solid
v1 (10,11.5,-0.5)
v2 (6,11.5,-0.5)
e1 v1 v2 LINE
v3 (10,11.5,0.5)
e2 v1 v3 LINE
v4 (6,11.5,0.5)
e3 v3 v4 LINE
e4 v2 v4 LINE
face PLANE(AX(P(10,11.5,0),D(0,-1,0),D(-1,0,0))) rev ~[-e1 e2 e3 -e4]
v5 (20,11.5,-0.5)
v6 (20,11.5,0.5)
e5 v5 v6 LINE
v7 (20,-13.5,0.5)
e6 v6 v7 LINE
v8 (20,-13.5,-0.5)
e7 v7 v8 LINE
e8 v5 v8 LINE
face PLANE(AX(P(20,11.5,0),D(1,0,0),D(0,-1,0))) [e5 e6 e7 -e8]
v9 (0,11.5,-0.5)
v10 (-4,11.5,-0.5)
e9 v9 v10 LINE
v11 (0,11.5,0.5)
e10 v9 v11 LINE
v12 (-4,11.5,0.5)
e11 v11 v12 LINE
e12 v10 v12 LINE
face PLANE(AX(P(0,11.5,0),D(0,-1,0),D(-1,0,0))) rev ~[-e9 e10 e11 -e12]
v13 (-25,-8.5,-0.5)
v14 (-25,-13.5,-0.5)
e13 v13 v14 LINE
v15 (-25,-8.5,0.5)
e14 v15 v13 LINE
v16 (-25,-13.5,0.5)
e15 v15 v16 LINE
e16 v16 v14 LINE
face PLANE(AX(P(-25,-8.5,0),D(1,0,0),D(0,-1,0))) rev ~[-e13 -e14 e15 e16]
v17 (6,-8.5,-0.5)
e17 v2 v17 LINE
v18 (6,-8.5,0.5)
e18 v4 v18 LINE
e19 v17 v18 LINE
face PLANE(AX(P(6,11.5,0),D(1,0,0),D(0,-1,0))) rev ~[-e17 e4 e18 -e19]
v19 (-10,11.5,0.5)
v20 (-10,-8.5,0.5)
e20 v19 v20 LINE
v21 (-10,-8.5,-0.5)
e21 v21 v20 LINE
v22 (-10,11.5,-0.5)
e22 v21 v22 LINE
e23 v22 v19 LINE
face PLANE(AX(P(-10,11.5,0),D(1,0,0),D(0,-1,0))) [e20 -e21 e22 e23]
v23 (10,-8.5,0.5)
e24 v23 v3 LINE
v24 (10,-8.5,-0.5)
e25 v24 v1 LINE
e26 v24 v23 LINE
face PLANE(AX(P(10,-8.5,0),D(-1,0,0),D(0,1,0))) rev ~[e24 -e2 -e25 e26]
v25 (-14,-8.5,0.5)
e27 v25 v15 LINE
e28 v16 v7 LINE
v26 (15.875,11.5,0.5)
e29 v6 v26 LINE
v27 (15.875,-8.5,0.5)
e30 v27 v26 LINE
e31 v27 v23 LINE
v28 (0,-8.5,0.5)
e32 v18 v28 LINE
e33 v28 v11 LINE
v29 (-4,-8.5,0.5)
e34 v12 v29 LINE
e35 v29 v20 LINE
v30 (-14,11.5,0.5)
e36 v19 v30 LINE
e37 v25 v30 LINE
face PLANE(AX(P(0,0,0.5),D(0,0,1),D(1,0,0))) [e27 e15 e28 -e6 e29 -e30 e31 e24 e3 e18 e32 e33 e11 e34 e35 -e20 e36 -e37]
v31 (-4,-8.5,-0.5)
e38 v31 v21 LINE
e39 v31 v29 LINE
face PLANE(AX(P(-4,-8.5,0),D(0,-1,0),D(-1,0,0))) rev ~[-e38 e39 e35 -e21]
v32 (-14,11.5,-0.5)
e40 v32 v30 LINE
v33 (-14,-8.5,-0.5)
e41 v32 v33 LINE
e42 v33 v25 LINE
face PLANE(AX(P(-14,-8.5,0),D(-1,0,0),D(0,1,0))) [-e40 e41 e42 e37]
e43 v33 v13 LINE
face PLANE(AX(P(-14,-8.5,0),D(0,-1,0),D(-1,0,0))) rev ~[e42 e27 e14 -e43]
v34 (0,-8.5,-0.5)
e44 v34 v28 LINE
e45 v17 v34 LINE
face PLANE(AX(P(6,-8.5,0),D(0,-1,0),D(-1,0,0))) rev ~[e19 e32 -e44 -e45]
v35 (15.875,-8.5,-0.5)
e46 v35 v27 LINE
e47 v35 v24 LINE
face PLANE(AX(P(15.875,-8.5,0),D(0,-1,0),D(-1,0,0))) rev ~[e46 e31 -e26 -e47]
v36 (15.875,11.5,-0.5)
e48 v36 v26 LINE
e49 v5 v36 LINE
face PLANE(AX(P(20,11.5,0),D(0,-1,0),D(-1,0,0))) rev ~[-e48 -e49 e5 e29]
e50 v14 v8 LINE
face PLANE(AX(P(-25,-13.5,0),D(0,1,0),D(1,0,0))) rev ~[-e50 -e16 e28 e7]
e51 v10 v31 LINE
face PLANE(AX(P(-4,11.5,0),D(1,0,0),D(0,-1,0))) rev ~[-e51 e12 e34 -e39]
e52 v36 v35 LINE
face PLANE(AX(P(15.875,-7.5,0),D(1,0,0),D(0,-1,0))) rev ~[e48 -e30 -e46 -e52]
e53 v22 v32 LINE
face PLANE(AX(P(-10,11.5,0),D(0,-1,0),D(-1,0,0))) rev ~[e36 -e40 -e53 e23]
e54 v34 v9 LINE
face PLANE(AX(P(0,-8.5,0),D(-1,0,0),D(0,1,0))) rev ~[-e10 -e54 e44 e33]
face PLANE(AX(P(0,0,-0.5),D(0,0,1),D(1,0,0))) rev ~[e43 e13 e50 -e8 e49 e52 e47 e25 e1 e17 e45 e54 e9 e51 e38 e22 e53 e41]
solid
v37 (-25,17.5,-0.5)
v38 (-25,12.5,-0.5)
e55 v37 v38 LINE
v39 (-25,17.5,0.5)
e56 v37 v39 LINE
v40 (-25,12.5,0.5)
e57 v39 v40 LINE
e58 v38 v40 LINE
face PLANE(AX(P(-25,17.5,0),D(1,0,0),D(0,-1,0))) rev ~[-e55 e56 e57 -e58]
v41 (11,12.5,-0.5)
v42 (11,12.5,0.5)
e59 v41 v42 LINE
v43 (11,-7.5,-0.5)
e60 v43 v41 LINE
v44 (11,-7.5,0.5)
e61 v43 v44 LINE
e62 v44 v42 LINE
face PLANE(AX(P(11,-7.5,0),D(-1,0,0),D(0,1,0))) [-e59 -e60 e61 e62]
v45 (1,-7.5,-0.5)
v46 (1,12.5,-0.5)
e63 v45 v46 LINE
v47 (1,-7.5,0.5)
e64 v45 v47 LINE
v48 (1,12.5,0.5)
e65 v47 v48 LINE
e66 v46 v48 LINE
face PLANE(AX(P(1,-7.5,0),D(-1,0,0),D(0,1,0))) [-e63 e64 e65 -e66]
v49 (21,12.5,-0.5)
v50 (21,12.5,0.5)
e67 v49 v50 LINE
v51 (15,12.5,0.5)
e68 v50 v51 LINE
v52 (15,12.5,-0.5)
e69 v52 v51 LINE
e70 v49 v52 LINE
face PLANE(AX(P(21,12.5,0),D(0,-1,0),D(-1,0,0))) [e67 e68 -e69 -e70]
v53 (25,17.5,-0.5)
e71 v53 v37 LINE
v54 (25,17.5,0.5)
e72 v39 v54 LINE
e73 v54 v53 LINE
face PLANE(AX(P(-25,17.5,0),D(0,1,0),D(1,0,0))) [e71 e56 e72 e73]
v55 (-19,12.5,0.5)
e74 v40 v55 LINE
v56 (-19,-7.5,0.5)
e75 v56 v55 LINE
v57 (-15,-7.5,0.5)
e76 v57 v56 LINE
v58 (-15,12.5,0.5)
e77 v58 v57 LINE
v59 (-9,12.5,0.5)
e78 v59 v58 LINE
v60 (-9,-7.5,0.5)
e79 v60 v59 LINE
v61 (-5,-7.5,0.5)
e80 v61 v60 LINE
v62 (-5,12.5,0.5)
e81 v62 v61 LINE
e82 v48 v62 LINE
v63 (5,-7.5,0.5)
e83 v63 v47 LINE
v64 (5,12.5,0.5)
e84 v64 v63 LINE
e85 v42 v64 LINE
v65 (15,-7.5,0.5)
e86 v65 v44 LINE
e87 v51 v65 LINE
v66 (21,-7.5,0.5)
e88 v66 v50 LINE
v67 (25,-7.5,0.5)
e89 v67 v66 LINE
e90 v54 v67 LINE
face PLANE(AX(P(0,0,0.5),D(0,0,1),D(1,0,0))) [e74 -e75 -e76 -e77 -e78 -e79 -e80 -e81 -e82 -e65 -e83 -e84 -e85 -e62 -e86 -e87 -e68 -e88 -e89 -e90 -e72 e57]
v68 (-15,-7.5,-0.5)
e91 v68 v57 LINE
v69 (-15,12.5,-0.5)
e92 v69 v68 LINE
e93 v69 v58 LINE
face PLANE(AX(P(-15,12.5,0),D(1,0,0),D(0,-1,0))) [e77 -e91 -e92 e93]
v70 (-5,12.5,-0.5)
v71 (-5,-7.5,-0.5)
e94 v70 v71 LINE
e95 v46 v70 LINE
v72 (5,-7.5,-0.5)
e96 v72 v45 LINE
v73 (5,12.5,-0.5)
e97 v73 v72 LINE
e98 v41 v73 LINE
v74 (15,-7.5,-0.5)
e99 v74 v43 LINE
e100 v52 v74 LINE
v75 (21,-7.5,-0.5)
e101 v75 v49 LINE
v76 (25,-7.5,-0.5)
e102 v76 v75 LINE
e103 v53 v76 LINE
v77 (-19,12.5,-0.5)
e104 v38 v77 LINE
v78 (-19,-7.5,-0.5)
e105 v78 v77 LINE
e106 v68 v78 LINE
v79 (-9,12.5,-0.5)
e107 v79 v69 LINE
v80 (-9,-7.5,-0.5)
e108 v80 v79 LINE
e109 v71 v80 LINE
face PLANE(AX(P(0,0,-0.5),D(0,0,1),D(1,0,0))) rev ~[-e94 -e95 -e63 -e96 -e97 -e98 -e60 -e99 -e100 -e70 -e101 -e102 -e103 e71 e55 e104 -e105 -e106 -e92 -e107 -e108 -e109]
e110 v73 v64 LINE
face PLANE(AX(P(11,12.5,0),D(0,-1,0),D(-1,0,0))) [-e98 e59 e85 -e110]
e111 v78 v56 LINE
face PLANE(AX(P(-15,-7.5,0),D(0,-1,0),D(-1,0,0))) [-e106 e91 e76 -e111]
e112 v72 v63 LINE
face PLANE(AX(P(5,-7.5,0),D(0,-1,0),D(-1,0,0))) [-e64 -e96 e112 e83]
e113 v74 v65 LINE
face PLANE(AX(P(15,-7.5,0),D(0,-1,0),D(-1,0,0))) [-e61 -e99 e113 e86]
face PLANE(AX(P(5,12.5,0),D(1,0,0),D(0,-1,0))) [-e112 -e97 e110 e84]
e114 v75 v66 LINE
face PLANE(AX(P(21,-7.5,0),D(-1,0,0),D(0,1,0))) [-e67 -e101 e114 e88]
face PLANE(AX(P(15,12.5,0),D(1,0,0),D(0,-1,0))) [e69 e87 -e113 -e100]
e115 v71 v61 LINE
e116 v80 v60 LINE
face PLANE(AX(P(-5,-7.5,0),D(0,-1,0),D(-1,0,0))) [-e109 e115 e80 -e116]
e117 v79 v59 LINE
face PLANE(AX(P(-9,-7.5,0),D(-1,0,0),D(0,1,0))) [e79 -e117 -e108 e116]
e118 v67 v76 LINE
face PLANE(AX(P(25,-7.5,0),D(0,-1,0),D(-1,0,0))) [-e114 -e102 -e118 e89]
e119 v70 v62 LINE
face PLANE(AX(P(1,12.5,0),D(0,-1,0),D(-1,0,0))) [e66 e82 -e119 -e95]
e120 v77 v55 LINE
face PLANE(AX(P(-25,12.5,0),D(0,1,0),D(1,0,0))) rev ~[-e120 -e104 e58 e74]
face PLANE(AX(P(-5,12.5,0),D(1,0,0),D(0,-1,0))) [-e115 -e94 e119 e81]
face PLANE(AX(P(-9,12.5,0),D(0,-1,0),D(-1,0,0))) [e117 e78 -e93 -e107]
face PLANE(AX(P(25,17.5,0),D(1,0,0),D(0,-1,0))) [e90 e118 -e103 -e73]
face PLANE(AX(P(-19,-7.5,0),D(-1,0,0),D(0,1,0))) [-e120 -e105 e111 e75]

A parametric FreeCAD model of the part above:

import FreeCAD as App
import Part
import Sketcher
from FreeCAD import Vector
Q = App.Units.Quantity

doc = App.newDocument("Part")
params = doc.addObject("Spreadsheet::Sheet", "Params")
for row, (alias, value) in enumerate([
    ("sketch1_width", "50 mm"),
    ("sketch1_width2", "6 mm"),
    ("sketch1_height", "5 mm"),
    ("sketch1_height2", "25 mm"),
    ("pad1_length", "1 mm"),
], start=1):
    params.set(f"A{row}", alias)
    params.set(f"B{row}", "=" + value)
    params.setAlias(f"B{row}", alias)

body = doc.addObject("PartDesign::Body", "Body")
body.AllowCompound = True

# Sketch on XY plane
sketch1 = body.newObject("Sketcher::SketchObject", "Sketch")
sketch1.AttachmentSupport = (doc.getObject("XY_Plane"), [""])
sketch1.MapMode = "FlatFace"
sketch1.addGeometry(Part.LineSegment(Vector(25, 17.5, 0), Vector(-25, 17.5, 0)), False)
sketch1.addGeometry(Part.LineSegment(Vector(-25, 17.5, 0), Vector(-25, 12.5, 0)), False)
sketch1.addGeometry(Part.LineSegment(Vector(-25, 12.5, 0), Vector(-19, 12.5, 0)), False)
sketch1.addGeometry(Part.LineSegment(Vector(-19, 12.5, 0), Vector(-19, -7.5, 0)), False)
sketch1.addGeometry(Part.LineSegment(Vector(-19, -7.5, 0), Vector(-15, -7.5, 0)), False)
sketch1.addGeometry(Part.LineSegment(Vector(-15, -7.5, 0), Vector(-15, 12.5, 0)), False)
sketch1.addGeometry(Part.LineSegment(Vector(-15, 12.5, 0), Vector(-9, 12.5, 0)), False)
sketch1.addGeometry(Part.LineSegment(Vector(-9, 12.5, 0), Vector(-9, -7.5, 0)), False)
sketch1.addGeometry(Part.LineSegment(Vector(-9, -7.5, 0), Vector(-5, -7.5, 0)), False)
sketch1.addGeometry(Part.LineSegment(Vector(-5, -7.5, 0), Vector(-5, 12.5, 0)), False)
sketch1.addGeometry(Part.LineSegment(Vector(-5, 12.5, 0), Vector(1, 12.5, 0)), False)
sketch1.addGeometry(Part.LineSegment(Vector(1, 12.5, 0), Vector(1, -7.5, 0)), False)
sketch1.addGeometry(Part.LineSegment(Vector(1, -7.5, 0), Vector(5, -7.5, 0)), False)
sketch1.addGeometry(Part.LineSegment(Vector(5, -7.5, 0), Vector(5, 12.5, 0)), False)
sketch1.addGeometry(Part.LineSegment(Vector(5, 12.5, 0), Vector(11, 12.5, 0)), False)
sketch1.addGeometry(Part.LineSegment(Vector(11, 12.5, 0), Vector(11, -7.5, 0)), False)
sketch1.addGeometry(Part.LineSegment(Vector(11, -7.5, 0), Vector(15, -7.5, 0)), False)
sketch1.addGeometry(Part.LineSegment(Vector(15, -7.5, 0), Vector(15, 12.5, 0)), False)
sketch1.addGeometry(Part.LineSegment(Vector(15, 12.5, 0), Vector(21, 12.5, 0)), False)
sketch1.addGeometry(Part.LineSegment(Vector(21, 12.5, 0), Vector(21, -7.5, 0)), False)
sketch1.addGeometry(Part.LineSegment(Vector(21, -7.5, 0), Vector(25, -7.5, 0)), False)
sketch1.addGeometry(Part.LineSegment(Vector(25, -7.5, 0), Vector(25, 17.5, 0)), False)
sketch1.addGeometry(Part.LineSegment(Vector(20, -13.5, 0), Vector(20, 11.5, 0)), False)
sketch1.addGeometry(Part.LineSegment(Vector(20, 11.5, 0), Vector(15.9, 11.5, 0)), False)
sketch1.addGeometry(Part.LineSegment(Vector(15.9, 11.5, 0), Vector(15.9, -8.5, 0)), False)
sketch1.addGeometry(Part.LineSegment(Vector(15.9, -8.5, 0), Vector(10, -8.5, 0)), False)
sketch1.addGeometry(Part.LineSegment(Vector(10, -8.5, 0), Vector(10, 11.5, 0)), False)
sketch1.addGeometry(Part.LineSegment(Vector(10, 11.5, 0), Vector(6, 11.5, 0)), False)
sketch1.addGeometry(Part.LineSegment(Vector(6, 11.5, 0), Vector(6, -8.5, 0)), False)
sketch1.addGeometry(Part.LineSegment(Vector(6, -8.5, 0), Vector(0, -8.5, 0)), False)
sketch1.addGeometry(Part.LineSegment(Vector(0, -8.5, 0), Vector(0, 11.5, 0)), False)
sketch1.addGeometry(Part.LineSegment(Vector(0, 11.5, 0), Vector(-4, 11.5, 0)), False)
sketch1.addGeometry(Part.LineSegment(Vector(-4, 11.5, 0), Vector(-4, -8.5, 0)), False)
sketch1.addGeometry(Part.LineSegment(Vector(-4, -8.5, 0), Vector(-10, -8.5, 0)), False)
sketch1.addGeometry(Part.LineSegment(Vector(-10, -8.5, 0), Vector(-10, 11.5, 0)), False)
sketch1.addGeometry(Part.LineSegment(Vector(-10, 11.5, 0), Vector(-14, 11.5, 0)), False)
sketch1.addGeometry(Part.LineSegment(Vector(-14, 11.5, 0), Vector(-14, -8.5, 0)), False)
sketch1.addGeometry(Part.LineSegment(Vector(-14, -8.5, 0), Vector(-25, -8.5, 0)), False)
sketch1.addGeometry(Part.LineSegment(Vector(-25, -8.5, 0), Vector(-25, -13.5, 0)), False)
sketch1.addGeometry(Part.LineSegment(Vector(-25, -13.5, 0), Vector(20, -13.5, 0)), False)
sketch1.addConstraint(Sketcher.Constraint("Coincident", 0, 2, 1, 1))
sketch1.addConstraint(Sketcher.Constraint("Coincident", 1, 2, 2, 1))
sketch1.addConstraint(Sketcher.Constraint("Coincident", 2, 2, 3, 1))
sketch1.addConstraint(Sketcher.Constraint("Coincident", 3, 2, 4, 1))
sketch1.addConstraint(Sketcher.Constraint("Coincident", 4, 2, 5, 1))
sketch1.addConstraint(Sketcher.Constraint("Coincident", 5, 2, 6, 1))
sketch1.addConstraint(Sketcher.Constraint("Coincident", 6, 2, 7, 1))
sketch1.addConstraint(Sketcher.Constraint("Coincident", 7, 2, 8, 1))
sketch1.addConstraint(Sketcher.Constraint("Coincident", 8, 2, 9, 1))
sketch1.addConstraint(Sketcher.Constraint("Coincident", 9, 2, 10, 1))
sketch1.addConstraint(Sketcher.Constraint("Coincident", 10, 2, 11, 1))
sketch1.addConstraint(Sketcher.Constraint("Coincident", 11, 2, 12, 1))
sketch1.addConstraint(Sketcher.Constraint("Coincident", 12, 2, 13, 1))
sketch1.addConstraint(Sketcher.Constraint("Coincident", 13, 2, 14, 1))
sketch1.addConstraint(Sketcher.Constraint("Coincident", 14, 2, 15, 1))
sketch1.addConstraint(Sketcher.Constraint("Coincident", 15, 2, 16, 1))
sketch1.addConstraint(Sketcher.Constraint("Coincident", 16, 2, 17, 1))
sketch1.addConstraint(Sketcher.Constraint("Coincident", 17, 2, 18, 1))
sketch1.addConstraint(Sketcher.Constraint("Coincident", 18, 2, 19, 1))
sketch1.addConstraint(Sketcher.Constraint("Coincident", 19, 2, 20, 1))
sketch1.addConstraint(Sketcher.Constraint("Coincident", 20, 2, 21, 1))
sketch1.addConstraint(Sketcher.Constraint("Coincident", 21, 2, 0, 1))
sketch1.addConstraint(Sketcher.Constraint("Coincident", 22, 2, 23, 1))
sketch1.addConstraint(Sketcher.Constraint("Coincident", 23, 2, 24, 1))
sketch1.addConstraint(Sketcher.Constraint("Coincident", 24, 2, 25, 1))
sketch1.addConstraint(Sketcher.Constraint("Coincident", 25, 2, 26, 1))
sketch1.addConstraint(Sketcher.Constraint("Coincident", 26, 2, 27, 1))
sketch1.addConstraint(Sketcher.Constraint("Coincident", 27, 2, 28, 1))
sketch1.addConstraint(Sketcher.Constraint("Coincident", 28, 2, 29, 1))
sketch1.addConstraint(Sketcher.Constraint("Coincident", 29, 2, 30, 1))
sketch1.addConstraint(Sketcher.Constraint("Coincident", 30, 2, 31, 1))
sketch1.addConstraint(Sketcher.Constraint("Coincident", 31, 2, 32, 1))
sketch1.addConstraint(Sketcher.Constraint("Coincident", 32, 2, 33, 1))
sketch1.addConstraint(Sketcher.Constraint("Coincident", 33, 2, 34, 1))
sketch1.addConstraint(Sketcher.Constraint("Coincident", 34, 2, 35, 1))
sketch1.addConstraint(Sketcher.Constraint("Coincident", 35, 2, 36, 1))
sketch1.addConstraint(Sketcher.Constraint("Coincident", 36, 2, 37, 1))
sketch1.addConstraint(Sketcher.Constraint("Coincident", 37, 2, 38, 1))
sketch1.addConstraint(Sketcher.Constraint("Coincident", 38, 2, 39, 1))
sketch1.addConstraint(Sketcher.Constraint("Coincident", 39, 2, 22, 1))
sketch1.addConstraint(Sketcher.Constraint("Horizontal", 0))
sketch1.addConstraint(Sketcher.Constraint("Vertical", 1))
sketch1.addConstraint(Sketcher.Constraint("Horizontal", 2))
sketch1.addConstraint(Sketcher.Constraint("Vertical", 3))
sketch1.addConstraint(Sketcher.Constraint("Horizontal", 4))
sketch1.addConstraint(Sketcher.Constraint("Vertical", 5))
sketch1.addConstraint(Sketcher.Constraint("Horizontal", 6))
sketch1.addConstraint(Sketcher.Constraint("Vertical", 7))
sketch1.addConstraint(Sketcher.Constraint("Horizontal", 8))
sketch1.addConstraint(Sketcher.Constraint("Vertical", 9))
sketch1.addConstraint(Sketcher.Constraint("Horizontal", 10))
sketch1.addConstraint(Sketcher.Constraint("Vertical", 11))
sketch1.addConstraint(Sketcher.Constraint("Horizontal", 12))
sketch1.addConstraint(Sketcher.Constraint("Vertical", 13))
sketch1.addConstraint(Sketcher.Constraint("Horizontal", 14))
sketch1.addConstraint(Sketcher.Constraint("Vertical", 15))
sketch1.addConstraint(Sketcher.Constraint("Horizontal", 16))
sketch1.addConstraint(Sketcher.Constraint("Vertical", 17))
sketch1.addConstraint(Sketcher.Constraint("Horizontal", 18))
sketch1.addConstraint(Sketcher.Constraint("Vertical", 19))
sketch1.addConstraint(Sketcher.Constraint("Horizontal", 20))
sketch1.addConstraint(Sketcher.Constraint("Vertical", 21))
sketch1.addConstraint(Sketcher.Constraint("Vertical", 22))
sketch1.addConstraint(Sketcher.Constraint("Horizontal", 23))
sketch1.addConstraint(Sketcher.Constraint("Vertical", 24))
sketch1.addConstraint(Sketcher.Constraint("Horizontal", 25))
sketch1.addConstraint(Sketcher.Constraint("Vertical", 26))
sketch1.addConstraint(Sketcher.Constraint("Horizontal", 27))
sketch1.addConstraint(Sketcher.Constraint("Vertical", 28))
sketch1.addConstraint(Sketcher.Constraint("Horizontal", 29))
sketch1.addConstraint(Sketcher.Constraint("Vertical", 30))
sketch1.addConstraint(Sketcher.Constraint("Horizontal", 31))
sketch1.addConstraint(Sketcher.Constraint("Vertical", 32))
sketch1.addConstraint(Sketcher.Constraint("Horizontal", 33))
sketch1.addConstraint(Sketcher.Constraint("Vertical", 34))
sketch1.addConstraint(Sketcher.Constraint("Horizontal", 35))
sketch1.addConstraint(Sketcher.Constraint("Vertical", 36))
sketch1.addConstraint(Sketcher.Constraint("Horizontal", 37))
sketch1.addConstraint(Sketcher.Constraint("Vertical", 38))
sketch1.addConstraint(Sketcher.Constraint("Horizontal", 39))
sketch1.addConstraint(Sketcher.Constraint("Symmetric", 8, 2, 12, 2, -2))
sketch1.addConstraint(Sketcher.Constraint("Symmetric", 4, 2, 16, 2, -2))
sketch1.addConstraint(Sketcher.Constraint("Symmetric", 25, 2, 33, 2, -2))
sketch1.addConstraint(Sketcher.Constraint("PointOnObject", 29, 2, -2))
sketch1.addConstraint(Sketcher.Constraint("Horizontal", 2, 2, 5, 2))
sketch1.addConstraint(Sketcher.Constraint("Horizontal", 4, 2, 7, 2))
sketch1.addConstraint(Sketcher.Constraint("Horizontal", 6, 2, 9, 2))
sketch1.addConstraint(Sketcher.Constraint("Horizontal", 10, 2, 13, 2))
sketch1.addConstraint(Sketcher.Constraint("Horizontal", 14, 2, 17, 2))
sketch1.addConstraint(Sketcher.Constraint("Horizontal", 16, 2, 19, 2))
sketch1.addConstraint(Sketcher.Constraint("Horizontal", 23, 2, 26, 2))
sketch1.addConstraint(Sketcher.Constraint("Horizontal", 25, 2, 28, 2))
sketch1.addConstraint(Sketcher.Constraint("Horizontal", 27, 2, 30, 2))
sketch1.addConstraint(Sketcher.Constraint("Horizontal", 31, 2, 34, 2))
sketch1.addConstraint(Sketcher.Constraint("Horizontal", 33, 2, 36, 2))
sketch1.addConstraint(Sketcher.Constraint("Vertical", 1, 2, 37, 2))
sketch1.addConstraint(Sketcher.Constraint("Equal", 2, 6))
sketch1.addConstraint(Sketcher.Constraint("Equal", 4, 8))
sketch1.addConstraint(Sketcher.Constraint("Equal", 6, 10))
sketch1.addConstraint(Sketcher.Constraint("Equal", 8, 12))
sketch1.addConstraint(Sketcher.Constraint("Equal", 10, 14))
sketch1.addConstraint(Sketcher.Constraint("Equal", 14, 18))
sketch1.addConstraint(Sketcher.Constraint("Equal", 16, 20))
sketch1.addConstraint(Sketcher.Constraint("Equal", 20, 27))
sketch1.addConstraint(Sketcher.Constraint("Equal", 18, 29))
sketch1.addConstraint(Sketcher.Constraint("Equal", 27, 31))
sketch1.addConstraint(Sketcher.Constraint("Equal", 31, 35))
sketch1.addConstraint(Sketcher.Constraint("Equal", 21, 22))
sketch1.addConstraint(Sketcher.Constraint("Equal", 19, 24))
sketch1.addConstraint(Sketcher.Constraint("DistanceX", 0, 2, 0, 1, Q("50 mm")))
sketch1.addConstraint(Sketcher.Constraint("DistanceX", 2, 1, 2, 2, Q("6 mm")))
sketch1.addConstraint(Sketcher.Constraint("DistanceY", 1, 2, 1, 1, Q("5 mm")))
sketch1.addConstraint(Sketcher.Constraint("DistanceY", 21, 1, 21, 2, Q("25 mm")))
sketch1.addConstraint(Sketcher.Constraint("DistanceX", 17, 2, 22, 2, Q("5 mm")))
sketch1.addConstraint(Sketcher.Constraint("DistanceY", 22, 2, 21, 2, Q("6 mm")))
sketch1.addConstraint(Sketcher.Constraint("DistanceY", -1, 1, 0, 2, Q("17.5 mm")))
sketch1.addConstraint(Sketcher.Constraint("DistanceX", 23, 2, 23, 1, Q("4.125 mm")))
sketch1.setExpression("Constraints[109]", "Params.sketch1_width")
sketch1.setExpression("Constraints[110]", "Params.sketch1_width2")
sketch1.setExpression("Constraints[111]", "Params.sketch1_height")
sketch1.setExpression("Constraints[112]", "Params.sketch1_height2")
pad1 = body.newObject("PartDesign::Pad", "Pad")
pad1.Profile = sketch1
pad1.setExpression("Length", "Params.pad1_length")
pad1.Midplane = True

doc.recompute()
